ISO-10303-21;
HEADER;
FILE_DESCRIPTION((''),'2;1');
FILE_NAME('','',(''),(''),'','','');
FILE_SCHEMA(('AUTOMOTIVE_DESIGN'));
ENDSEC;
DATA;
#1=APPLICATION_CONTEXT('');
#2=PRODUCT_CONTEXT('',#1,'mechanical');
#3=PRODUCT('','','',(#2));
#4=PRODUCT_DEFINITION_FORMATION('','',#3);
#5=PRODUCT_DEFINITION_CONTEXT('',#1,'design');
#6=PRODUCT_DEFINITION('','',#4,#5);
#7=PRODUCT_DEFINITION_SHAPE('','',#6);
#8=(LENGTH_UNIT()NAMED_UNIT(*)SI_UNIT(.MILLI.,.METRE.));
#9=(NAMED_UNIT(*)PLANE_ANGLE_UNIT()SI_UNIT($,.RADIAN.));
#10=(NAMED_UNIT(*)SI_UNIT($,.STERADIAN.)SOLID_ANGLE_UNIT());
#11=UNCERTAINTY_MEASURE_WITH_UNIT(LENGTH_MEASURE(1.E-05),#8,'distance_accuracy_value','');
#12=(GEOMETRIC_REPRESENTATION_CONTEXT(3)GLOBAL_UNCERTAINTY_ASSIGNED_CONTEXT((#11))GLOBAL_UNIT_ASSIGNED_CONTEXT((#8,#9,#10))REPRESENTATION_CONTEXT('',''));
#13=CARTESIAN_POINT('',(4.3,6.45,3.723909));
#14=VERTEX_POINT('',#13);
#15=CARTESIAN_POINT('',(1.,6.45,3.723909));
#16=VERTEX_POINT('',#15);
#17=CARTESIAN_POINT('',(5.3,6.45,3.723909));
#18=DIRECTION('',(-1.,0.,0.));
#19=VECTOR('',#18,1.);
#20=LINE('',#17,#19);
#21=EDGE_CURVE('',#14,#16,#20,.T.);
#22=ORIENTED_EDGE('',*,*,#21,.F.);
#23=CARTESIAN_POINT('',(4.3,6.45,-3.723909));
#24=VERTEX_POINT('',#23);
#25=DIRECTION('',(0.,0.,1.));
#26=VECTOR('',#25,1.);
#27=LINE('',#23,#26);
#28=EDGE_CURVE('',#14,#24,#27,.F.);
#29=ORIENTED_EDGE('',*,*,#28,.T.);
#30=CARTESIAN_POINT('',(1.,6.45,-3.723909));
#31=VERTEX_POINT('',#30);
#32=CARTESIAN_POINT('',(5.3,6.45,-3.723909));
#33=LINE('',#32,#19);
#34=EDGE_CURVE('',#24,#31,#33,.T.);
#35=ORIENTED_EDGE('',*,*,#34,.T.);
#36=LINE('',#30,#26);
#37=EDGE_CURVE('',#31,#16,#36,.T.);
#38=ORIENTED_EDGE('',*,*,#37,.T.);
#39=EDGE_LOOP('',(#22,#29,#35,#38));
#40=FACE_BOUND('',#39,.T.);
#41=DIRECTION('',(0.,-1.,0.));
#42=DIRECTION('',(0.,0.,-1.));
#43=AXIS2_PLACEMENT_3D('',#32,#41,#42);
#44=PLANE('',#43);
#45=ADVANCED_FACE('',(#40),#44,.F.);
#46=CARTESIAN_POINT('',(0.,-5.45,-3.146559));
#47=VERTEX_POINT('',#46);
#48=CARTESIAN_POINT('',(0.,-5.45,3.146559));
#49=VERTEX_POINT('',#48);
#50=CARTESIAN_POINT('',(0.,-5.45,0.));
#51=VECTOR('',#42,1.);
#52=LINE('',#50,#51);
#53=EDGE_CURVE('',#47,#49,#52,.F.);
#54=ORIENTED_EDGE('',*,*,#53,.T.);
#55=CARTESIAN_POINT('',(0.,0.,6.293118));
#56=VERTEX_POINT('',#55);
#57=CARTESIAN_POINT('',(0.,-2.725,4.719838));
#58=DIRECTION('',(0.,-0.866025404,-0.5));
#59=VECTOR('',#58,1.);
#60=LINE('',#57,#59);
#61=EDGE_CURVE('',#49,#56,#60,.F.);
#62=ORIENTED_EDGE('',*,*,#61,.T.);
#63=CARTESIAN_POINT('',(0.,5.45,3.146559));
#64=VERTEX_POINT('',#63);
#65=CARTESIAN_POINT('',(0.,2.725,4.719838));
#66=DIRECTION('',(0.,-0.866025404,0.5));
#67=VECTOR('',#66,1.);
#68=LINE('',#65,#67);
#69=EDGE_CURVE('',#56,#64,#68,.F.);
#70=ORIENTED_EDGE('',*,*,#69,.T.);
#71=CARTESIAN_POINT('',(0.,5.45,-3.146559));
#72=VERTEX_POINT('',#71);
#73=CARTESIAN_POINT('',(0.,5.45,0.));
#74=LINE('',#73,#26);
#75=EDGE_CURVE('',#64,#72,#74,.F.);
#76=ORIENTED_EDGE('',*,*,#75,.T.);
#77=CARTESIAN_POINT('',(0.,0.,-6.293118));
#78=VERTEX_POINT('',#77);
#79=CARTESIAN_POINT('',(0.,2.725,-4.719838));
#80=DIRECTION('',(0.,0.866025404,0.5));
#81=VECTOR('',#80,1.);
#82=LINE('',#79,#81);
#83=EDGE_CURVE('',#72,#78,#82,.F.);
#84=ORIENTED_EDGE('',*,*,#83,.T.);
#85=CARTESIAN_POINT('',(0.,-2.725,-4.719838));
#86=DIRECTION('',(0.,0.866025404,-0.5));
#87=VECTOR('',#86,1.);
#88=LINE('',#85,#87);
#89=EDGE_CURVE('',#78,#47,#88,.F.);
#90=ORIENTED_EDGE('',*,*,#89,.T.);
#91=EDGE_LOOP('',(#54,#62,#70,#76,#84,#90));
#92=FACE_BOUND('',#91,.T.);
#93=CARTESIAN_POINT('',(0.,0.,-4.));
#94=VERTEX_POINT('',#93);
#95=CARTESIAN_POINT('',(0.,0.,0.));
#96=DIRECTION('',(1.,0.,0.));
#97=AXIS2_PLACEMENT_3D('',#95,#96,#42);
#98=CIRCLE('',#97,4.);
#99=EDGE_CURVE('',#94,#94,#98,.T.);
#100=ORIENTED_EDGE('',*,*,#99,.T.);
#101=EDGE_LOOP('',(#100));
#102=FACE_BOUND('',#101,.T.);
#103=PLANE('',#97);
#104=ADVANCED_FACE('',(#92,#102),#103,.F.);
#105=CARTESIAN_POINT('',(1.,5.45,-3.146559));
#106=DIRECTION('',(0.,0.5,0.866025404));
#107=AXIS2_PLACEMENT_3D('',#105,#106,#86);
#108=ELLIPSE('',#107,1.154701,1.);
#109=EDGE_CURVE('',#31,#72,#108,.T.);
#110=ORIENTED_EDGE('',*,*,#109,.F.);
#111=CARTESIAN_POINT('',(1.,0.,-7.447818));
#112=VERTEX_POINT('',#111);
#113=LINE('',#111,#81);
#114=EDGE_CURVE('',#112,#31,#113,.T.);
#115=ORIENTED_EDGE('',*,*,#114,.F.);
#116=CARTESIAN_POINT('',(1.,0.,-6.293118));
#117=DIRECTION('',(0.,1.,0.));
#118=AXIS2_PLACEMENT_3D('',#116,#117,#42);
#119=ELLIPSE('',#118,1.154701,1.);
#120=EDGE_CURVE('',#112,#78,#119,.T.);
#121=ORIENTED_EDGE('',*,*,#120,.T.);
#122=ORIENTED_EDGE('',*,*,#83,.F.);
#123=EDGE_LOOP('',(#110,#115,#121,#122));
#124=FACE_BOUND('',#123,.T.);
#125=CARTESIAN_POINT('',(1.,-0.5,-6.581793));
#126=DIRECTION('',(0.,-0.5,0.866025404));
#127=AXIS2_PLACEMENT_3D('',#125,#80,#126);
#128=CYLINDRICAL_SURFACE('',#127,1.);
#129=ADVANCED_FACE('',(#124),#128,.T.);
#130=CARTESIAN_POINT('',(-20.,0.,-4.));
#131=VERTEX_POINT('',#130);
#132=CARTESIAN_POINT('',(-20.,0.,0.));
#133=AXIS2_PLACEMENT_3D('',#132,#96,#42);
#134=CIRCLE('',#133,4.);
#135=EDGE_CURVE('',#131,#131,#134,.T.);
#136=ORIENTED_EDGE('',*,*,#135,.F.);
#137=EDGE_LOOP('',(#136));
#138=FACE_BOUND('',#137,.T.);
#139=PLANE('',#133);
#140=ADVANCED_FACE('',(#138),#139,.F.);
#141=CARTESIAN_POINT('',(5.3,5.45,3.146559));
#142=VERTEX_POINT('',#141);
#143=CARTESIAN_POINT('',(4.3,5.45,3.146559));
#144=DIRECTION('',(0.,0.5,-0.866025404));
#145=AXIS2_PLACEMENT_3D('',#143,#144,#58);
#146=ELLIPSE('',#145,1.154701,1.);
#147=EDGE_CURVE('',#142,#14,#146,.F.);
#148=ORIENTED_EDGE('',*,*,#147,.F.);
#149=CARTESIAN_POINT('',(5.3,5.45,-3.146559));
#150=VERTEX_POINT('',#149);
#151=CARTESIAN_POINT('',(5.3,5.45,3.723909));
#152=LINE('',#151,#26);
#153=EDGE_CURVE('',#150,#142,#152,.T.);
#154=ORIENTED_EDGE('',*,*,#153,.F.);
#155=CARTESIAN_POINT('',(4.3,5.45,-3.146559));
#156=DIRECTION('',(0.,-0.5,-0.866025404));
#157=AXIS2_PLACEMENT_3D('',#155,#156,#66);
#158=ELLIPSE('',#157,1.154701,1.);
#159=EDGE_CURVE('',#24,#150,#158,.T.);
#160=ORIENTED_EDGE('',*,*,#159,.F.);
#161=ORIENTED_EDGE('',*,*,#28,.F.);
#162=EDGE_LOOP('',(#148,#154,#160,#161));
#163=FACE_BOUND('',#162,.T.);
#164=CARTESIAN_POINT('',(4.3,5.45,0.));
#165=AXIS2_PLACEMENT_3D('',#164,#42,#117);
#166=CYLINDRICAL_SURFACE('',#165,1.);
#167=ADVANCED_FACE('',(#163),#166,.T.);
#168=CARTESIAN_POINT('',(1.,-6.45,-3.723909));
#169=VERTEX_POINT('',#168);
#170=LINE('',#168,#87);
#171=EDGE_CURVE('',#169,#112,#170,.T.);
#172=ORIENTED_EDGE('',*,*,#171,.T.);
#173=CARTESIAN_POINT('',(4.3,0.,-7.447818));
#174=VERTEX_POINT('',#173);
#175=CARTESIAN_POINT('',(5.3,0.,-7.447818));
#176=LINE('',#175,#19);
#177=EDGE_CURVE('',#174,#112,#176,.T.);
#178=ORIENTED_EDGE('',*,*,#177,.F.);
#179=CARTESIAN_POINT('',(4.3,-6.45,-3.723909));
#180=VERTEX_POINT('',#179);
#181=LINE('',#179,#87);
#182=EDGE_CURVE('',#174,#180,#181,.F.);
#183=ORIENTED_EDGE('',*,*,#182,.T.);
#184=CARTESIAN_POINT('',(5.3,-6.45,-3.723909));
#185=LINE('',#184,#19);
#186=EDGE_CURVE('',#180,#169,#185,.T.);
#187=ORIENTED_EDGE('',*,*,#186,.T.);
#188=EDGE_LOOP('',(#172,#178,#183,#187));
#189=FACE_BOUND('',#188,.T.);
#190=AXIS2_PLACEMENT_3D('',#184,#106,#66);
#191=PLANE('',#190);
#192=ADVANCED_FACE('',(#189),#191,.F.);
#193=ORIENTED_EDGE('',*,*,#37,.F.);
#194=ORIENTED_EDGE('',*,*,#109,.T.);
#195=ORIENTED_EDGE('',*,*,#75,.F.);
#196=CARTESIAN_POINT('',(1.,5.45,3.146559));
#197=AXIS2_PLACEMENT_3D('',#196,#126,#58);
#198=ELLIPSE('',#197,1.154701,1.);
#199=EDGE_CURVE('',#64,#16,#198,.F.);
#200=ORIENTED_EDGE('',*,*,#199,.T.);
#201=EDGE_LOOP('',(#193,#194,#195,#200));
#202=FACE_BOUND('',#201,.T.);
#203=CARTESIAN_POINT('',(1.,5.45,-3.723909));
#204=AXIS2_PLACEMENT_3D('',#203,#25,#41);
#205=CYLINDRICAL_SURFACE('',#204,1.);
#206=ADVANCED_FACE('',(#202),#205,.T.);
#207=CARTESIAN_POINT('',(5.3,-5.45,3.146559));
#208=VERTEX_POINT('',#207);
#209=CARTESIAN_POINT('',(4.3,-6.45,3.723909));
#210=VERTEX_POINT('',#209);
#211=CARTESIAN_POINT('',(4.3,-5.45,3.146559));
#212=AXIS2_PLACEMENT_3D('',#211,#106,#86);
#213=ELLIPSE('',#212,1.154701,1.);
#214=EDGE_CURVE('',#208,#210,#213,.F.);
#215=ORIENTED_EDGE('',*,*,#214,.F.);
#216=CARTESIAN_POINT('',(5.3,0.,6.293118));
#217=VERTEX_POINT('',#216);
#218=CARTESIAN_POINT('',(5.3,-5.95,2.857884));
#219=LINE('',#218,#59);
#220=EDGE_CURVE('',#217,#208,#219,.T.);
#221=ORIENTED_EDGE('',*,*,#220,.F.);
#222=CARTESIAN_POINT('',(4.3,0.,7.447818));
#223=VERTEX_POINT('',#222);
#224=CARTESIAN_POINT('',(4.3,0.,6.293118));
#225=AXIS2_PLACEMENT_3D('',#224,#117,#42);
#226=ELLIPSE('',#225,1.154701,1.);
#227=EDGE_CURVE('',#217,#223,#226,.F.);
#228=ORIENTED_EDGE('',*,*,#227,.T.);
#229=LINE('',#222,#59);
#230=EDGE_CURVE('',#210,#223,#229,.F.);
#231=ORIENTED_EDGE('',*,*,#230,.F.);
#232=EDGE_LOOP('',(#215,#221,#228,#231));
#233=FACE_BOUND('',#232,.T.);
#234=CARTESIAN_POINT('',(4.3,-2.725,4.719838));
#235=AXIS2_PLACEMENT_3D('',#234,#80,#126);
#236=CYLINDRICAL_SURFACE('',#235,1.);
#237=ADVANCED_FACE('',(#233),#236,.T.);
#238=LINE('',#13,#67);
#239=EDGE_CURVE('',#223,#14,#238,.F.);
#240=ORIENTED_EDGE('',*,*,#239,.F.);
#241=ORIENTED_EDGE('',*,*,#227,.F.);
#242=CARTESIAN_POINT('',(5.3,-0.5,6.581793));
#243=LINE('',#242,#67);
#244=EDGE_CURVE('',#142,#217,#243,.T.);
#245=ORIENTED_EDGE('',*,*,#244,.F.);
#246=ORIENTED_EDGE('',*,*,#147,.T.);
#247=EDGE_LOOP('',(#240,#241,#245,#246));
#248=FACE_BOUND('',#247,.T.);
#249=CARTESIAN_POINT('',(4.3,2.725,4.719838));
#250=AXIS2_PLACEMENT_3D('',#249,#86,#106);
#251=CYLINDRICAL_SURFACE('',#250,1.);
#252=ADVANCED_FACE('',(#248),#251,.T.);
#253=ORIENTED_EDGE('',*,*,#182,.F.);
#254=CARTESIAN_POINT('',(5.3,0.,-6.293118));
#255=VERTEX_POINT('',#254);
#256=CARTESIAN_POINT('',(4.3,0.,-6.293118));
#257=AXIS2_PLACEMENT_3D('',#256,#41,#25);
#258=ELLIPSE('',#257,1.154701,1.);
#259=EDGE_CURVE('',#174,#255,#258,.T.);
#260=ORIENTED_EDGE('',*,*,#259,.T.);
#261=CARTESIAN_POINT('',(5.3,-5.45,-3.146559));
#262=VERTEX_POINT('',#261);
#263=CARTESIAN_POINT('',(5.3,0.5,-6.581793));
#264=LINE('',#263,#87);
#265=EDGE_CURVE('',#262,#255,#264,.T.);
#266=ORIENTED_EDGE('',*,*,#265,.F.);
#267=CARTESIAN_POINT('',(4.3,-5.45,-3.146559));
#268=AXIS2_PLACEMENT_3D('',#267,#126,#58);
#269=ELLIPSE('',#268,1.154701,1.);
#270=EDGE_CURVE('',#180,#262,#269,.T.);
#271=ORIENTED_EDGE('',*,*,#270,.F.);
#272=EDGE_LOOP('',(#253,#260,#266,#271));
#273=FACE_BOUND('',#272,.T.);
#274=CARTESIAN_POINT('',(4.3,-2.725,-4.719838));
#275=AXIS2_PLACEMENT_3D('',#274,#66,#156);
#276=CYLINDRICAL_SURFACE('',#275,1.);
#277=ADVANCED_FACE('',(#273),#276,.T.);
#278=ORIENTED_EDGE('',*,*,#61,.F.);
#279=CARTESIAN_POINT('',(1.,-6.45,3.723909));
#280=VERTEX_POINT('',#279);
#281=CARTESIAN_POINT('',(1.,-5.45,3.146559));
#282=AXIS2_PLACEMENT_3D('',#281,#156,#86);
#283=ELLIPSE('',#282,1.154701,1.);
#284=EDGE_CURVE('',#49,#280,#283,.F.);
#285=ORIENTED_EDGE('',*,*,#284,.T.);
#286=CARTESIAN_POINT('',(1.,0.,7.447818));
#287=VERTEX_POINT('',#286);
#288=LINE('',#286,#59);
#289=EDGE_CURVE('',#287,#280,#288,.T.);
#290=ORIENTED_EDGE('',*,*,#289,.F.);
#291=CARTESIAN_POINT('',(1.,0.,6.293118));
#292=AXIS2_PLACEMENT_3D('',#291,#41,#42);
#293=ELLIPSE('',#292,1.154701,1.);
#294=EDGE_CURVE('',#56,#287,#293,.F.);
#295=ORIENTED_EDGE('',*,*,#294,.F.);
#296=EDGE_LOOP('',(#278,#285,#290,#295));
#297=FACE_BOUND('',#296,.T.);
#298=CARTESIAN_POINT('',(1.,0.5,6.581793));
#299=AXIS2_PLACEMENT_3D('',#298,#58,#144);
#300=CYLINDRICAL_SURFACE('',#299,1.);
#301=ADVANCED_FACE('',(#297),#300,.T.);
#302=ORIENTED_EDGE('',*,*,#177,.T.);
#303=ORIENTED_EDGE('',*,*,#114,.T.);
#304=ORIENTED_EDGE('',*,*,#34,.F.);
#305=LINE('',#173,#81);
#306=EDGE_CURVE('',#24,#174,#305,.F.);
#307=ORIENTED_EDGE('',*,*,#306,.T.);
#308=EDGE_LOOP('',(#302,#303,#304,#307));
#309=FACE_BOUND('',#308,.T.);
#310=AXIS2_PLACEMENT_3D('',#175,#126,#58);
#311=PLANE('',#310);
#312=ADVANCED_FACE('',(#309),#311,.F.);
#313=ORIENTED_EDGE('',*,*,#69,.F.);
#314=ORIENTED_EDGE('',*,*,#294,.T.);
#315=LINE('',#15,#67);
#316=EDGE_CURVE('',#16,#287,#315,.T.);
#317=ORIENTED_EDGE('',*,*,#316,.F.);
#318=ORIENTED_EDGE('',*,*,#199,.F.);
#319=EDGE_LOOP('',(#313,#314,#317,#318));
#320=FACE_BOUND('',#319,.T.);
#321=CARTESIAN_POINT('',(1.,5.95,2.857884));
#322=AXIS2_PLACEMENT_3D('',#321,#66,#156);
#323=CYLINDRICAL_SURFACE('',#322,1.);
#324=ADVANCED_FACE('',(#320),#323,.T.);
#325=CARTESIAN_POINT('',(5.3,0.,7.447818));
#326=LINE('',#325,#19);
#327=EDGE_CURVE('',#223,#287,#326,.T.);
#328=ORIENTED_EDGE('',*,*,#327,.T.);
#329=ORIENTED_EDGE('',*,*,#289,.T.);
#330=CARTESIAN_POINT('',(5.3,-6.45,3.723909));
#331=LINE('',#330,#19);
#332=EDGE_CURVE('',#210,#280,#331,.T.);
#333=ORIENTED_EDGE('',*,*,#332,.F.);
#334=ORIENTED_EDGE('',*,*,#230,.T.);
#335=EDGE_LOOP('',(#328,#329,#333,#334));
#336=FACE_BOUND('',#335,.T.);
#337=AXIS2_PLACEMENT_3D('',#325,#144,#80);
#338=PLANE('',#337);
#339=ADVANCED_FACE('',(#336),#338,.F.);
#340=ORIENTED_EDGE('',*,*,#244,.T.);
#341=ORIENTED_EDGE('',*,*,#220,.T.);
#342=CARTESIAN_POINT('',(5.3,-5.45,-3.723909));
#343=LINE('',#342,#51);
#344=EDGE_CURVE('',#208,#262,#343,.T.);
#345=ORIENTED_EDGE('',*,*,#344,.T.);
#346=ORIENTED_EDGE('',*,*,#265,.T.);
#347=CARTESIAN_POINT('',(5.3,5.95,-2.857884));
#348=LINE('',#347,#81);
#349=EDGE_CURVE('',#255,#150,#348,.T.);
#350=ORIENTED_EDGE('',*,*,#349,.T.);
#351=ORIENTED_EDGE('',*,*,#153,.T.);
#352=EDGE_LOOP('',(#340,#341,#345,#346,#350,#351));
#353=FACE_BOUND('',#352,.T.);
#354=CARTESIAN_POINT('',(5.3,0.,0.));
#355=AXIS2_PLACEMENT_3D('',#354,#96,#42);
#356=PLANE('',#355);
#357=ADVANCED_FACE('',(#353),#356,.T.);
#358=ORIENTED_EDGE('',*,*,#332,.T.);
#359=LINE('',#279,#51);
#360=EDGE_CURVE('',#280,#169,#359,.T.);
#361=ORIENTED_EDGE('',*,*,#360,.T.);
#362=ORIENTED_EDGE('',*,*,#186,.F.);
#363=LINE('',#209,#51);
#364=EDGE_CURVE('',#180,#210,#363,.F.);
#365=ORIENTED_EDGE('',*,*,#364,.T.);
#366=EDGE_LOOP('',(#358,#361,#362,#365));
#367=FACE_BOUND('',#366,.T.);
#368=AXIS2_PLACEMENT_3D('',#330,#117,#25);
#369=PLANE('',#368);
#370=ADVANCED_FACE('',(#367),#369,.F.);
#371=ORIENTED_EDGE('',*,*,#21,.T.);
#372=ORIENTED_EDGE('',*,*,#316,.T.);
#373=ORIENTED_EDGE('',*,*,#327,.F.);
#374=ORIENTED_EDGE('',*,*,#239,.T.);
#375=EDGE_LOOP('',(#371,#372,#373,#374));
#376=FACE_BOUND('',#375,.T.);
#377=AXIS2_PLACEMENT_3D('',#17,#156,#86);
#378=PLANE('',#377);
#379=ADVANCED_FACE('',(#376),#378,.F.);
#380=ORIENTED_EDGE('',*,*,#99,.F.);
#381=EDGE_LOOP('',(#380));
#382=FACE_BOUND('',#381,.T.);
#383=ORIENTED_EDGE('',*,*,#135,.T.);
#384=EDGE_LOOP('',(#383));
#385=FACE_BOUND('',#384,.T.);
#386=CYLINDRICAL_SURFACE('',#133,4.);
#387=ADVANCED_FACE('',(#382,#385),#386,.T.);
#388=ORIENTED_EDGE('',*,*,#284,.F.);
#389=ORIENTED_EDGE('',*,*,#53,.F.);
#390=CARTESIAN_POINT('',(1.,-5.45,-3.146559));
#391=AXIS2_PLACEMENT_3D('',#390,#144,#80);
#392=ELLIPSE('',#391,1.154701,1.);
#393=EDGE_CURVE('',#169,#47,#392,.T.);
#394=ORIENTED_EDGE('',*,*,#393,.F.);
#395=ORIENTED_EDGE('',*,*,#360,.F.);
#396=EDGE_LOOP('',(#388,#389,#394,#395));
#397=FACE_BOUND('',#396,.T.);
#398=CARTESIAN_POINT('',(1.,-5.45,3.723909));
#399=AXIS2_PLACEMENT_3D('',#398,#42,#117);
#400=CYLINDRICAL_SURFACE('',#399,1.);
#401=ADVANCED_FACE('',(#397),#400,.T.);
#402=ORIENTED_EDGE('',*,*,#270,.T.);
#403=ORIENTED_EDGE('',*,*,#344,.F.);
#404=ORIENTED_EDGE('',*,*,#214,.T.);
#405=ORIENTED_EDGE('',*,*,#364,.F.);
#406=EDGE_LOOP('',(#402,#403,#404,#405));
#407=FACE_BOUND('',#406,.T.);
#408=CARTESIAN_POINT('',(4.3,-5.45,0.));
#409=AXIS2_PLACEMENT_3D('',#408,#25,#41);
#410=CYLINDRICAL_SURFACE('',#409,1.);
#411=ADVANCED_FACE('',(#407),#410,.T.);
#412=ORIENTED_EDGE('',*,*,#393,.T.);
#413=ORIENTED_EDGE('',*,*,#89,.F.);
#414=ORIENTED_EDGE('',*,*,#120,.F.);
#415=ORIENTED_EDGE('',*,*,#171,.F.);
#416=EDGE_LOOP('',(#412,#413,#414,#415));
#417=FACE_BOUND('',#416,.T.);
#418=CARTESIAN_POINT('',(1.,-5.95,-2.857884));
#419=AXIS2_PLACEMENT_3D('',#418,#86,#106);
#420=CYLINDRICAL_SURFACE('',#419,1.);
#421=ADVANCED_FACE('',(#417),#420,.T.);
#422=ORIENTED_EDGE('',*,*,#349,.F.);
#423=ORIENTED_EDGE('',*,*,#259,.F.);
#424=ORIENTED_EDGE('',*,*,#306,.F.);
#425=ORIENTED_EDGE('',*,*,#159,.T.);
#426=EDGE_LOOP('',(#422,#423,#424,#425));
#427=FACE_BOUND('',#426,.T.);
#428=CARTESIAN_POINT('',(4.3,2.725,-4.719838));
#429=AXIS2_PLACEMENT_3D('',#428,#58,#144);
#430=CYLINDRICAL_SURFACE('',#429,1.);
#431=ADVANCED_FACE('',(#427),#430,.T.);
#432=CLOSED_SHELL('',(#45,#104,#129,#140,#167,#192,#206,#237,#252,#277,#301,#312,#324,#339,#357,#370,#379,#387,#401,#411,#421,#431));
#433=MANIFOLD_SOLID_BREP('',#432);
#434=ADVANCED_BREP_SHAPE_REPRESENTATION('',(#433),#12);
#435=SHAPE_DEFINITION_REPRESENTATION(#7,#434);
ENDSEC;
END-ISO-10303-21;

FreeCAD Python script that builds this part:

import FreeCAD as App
import Part
import Sketcher

V = App.Vector
Q = App.Units.Quantity


def edges_at(feature, points):
    """Names of the edges that pass closest to the given points."""
    edges = feature.Shape.Edges
    near = lambda p: min(range(len(edges)), key=lambda i: edges[i].distToShape(Part.Vertex(*p))[0])
    return sorted({f"Edge{near(p) + 1}" for p in points})


def add_polygon(sketch, points):
    """Adds a closed chain of lines whose ends are joined by coincident constraints."""
    first, n = sketch.GeometryCount, len(points)
    for a, b in zip(points, points[1:] + points[:1]):
        sketch.addGeometry(Part.LineSegment(App.Vector(*a, 0), App.Vector(*b, 0)), False)
    for i in range(n):
        sketch.addConstraint(Sketcher.Constraint("Coincident", first + i, 2, first + (i + 1) % n, 1))

doc = App.newDocument("Part")
params = doc.addObject("Spreadsheet::Sheet", "Params")
for row, (alias, value) in enumerate([
    ("pad1_length", "5.3 mm"),
    ("sketch2_diameter", "8 mm"),
    ("pad2_length", "20 mm"),
    ("fillet_radius", "1 mm"),
], start=1):
    params.set(f"A{row}", alias)
    params.set(f"B{row}", "=" + value)
    params.setAlias(f"B{row}", alias)

body = doc.addObject("PartDesign::Body", "Body")

sketch1 = doc.addObject("Sketcher::SketchObject", "Sketch")
body.addObject(sketch1)
sketch1.AttachmentSupport = (doc.YZ_Plane, [""])
sketch1.MapMode = "FlatFace"
add_polygon(sketch1, [(6, 4), (0, 7), (-6, 4), (-6, -4), (0, -7), (6, -4)])
sketch1.addConstraint([
    Sketcher.Constraint("Vertical", 2),
    Sketcher.Constraint("Vertical", 5),
    Sketcher.Constraint("Symmetric", 0, 2, 3, 2, -1, 1),
    Sketcher.Constraint("Symmetric", 1, 2, 4, 2, -1, 1),
    Sketcher.Constraint("PointOnObject", 0, 2, -2),
    Sketcher.Constraint("Parallel", 0, 3),
    Sketcher.Constraint("Horizontal", 2, 2, 4, 2),
    Sketcher.Constraint("Angle", 0, Q("150 deg")),
    Sketcher.Constraint("DistanceX", 2, 2, 4, 2, Q("12.9 mm")),
    Sketcher.Constraint("DistanceY", 2, 2, 2, 1, Q("7.447818 mm")),
])
pad1 = doc.addObject("PartDesign::Pad", "Pad")
body.addObject(pad1)
pad1.Profile = sketch1
pad1.setExpression("Length", "Params.pad1_length")

sketch2 = doc.addObject("Sketcher::SketchObject", "Sketch001")
body.addObject(sketch2)
sketch2.AttachmentSupport = (doc.YZ_Plane, [""])
sketch2.MapMode = "FlatFace"
sketch2.addGeometry(Part.Circle(V(0, 0, 0), V(0, 0, 1), 4), False)
sketch2.addConstraint([
    Sketcher.Constraint("Coincident", 0, 3, -1, 1),
    Sketcher.Constraint("Diameter", 0, Q("8 mm")),
])
sketch2.setExpression("Constraints[1]", "Params.sketch2_diameter")
pad2 = doc.addObject("PartDesign::Pad", "Pad001")
body.addObject(pad2)
pad2.Profile = sketch2
pad2.setExpression("Length", "Params.pad2_length")
pad2.Reversed = True
doc.recompute()

fillet = doc.addObject("PartDesign::Fillet", "Fillet")
body.addObject(fillet)
fillet.Base = (pad2, edges_at(pad2, [
    (5.3, -3.225, 5.586),
    (5.3, -6.45, 0),
    (5.3, -3.225, -5.586),
    (5.3, 3.225, -5.586),
    (5.3, 6.45, 0),
    (0, 3.225, -5.586),
    (0, -3.225, -5.586),
    (0, -6.45, 0),
    (0, -3.225, 5.586),
    (0, 3.225, 5.586),
    (0, 6.45, 0),
    (5.3, 3.225, 5.586),
]))
fillet.setExpression("Radius", "Params.fillet_radius")

doc.recompute()
